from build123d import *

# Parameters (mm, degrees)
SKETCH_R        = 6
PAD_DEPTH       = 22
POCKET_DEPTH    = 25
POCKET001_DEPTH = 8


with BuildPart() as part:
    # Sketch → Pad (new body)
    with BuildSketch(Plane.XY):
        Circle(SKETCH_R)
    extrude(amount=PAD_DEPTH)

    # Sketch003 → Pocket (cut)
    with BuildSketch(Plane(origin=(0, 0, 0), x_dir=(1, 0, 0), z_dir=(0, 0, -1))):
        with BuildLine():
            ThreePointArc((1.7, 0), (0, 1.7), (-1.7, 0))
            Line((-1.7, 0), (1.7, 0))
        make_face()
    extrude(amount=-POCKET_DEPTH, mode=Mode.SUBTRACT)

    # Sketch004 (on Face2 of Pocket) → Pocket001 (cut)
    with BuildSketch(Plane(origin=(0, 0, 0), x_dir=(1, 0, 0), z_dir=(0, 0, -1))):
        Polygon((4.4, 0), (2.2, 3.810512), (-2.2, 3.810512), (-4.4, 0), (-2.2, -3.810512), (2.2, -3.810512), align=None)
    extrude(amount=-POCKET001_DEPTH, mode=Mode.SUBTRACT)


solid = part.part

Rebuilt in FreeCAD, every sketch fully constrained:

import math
import FreeCAD as App
import Part
import Sketcher
from FreeCAD import Vector
Q = App.Units.Quantity

doc = App.newDocument("Part")
body = doc.addObject("PartDesign::Body", "Body")

# Sketch on XY plane
sketch1 = body.newObject("Sketcher::SketchObject", "Sketch")
sketch1.AttachmentSupport = (doc.getObject("XY_Plane"), [""])
sketch1.MapMode = "FlatFace"
sketch1.addGeometry(Part.Circle(Vector(0, 0, 0), Vector(0, 0, 1), 6), False)
sketch1.addConstraint([
    Sketcher.Constraint("Coincident", 0, 3, -1, 1),
    Sketcher.Constraint("Diameter", 0, 12.0),
])
pad1 = body.newObject("PartDesign::Pad", "Pad")
pad1.Profile = sketch1
pad1.Length = 22

# Sketch on XY plane
sketch2 = body.newObject("Sketcher::SketchObject", "Sketch001")
sketch2.AttachmentSupport = (doc.getObject("XY_Plane"), [""])
sketch2.MapMode = "FlatFace"
sketch2.addGeometry([
    Part.ArcOfCircle(Part.Circle(Vector(0, 0, 0), Vector(0, 0, 1), 1.7), math.radians(180), math.radians(360)),
    Part.LineSegment(Vector(-1.7, 0, 0), Vector(1.7, 0, 0)),
], False)
sketch2.addConstraint([
    Sketcher.Constraint("Coincident", 0, 1, 1, 1),
    Sketcher.Constraint("Coincident", 1, 2, 0, 2),
    Sketcher.Constraint("Horizontal", 1),
    Sketcher.Constraint("Coincident", 0, 3, -1, 1),
    Sketcher.Constraint("PointOnObject", 0, 1, -1),
    Sketcher.Constraint("Radius", 0, 1.7),
])
pocket1 = body.newObject("PartDesign::Pocket", "Pocket")
pocket1.Profile = sketch2
pocket1.Length = 25
pocket1.Reversed = True

# Sketch on XY plane
sketch3 = body.newObject("Sketcher::SketchObject", "Sketch002")
sketch3.AttachmentSupport = (doc.getObject("XY_Plane"), [""])
sketch3.MapMode = "FlatFace"
sketch3.addGeometry([
    Part.LineSegment(Vector(4.4, 0, 0), Vector(2.2, -3.8, 0)),  # 0
    Part.LineSegment(Vector(2.2, -3.8, 0), Vector(-2.2, -3.8, 0)),  # 1
    Part.LineSegment(Vector(-2.2, -3.8, 0), Vector(-4.4, 0, 0)),  # 2
    Part.LineSegment(Vector(-4.4, 0, 0), Vector(-2.2, 3.8, 0)),  # 3
    Part.LineSegment(Vector(-2.2, 3.8, 0), Vector(2.2, 3.8, 0)),  # 4
    Part.LineSegment(Vector(2.2, 3.8, 0), Vector(4.4, 0, 0)),  # 5
], False)
sketch3.addConstraint([
    Sketcher.Constraint("Coincident", 0, 2, 1, 1),
    Sketcher.Constraint("Coincident", 1, 2, 2, 1),
    Sketcher.Constraint("Coincident", 2, 2, 3, 1),
    Sketcher.Constraint("Coincident", 3, 2, 4, 1),
    Sketcher.Constraint("Coincident", 4, 2, 5, 1),
    Sketcher.Constraint("Coincident", 5, 2, 0, 1),
    Sketcher.Constraint("Horizontal", 1),
    Sketcher.Constraint("Horizontal", 4),
    Sketcher.Constraint("Symmetric", 0, 2, 3, 2, -1, 1),
    Sketcher.Constraint("Symmetric", 2, 2, 5, 2, -1, 1),
    Sketcher.Constraint("PointOnObject", 2, 2, -1),
    Sketcher.Constraint("Parallel", 2, 5),
    Sketcher.Constraint("Vertical", 1, 2, 3, 2),
    Sketcher.Constraint("Angle", 0, Q("-119.999999 deg")),
    Sketcher.Constraint("DistanceX", 1, 2, 1, 1, 4.4),
    Sketcher.Constraint("Distance", 0, 4.4),
])
pocket2 = body.newObject("PartDesign::Pocket", "Pocket001")
pocket2.Profile = sketch3
pocket2.Length = 8
pocket2.Reversed = True

doc.recompute()
